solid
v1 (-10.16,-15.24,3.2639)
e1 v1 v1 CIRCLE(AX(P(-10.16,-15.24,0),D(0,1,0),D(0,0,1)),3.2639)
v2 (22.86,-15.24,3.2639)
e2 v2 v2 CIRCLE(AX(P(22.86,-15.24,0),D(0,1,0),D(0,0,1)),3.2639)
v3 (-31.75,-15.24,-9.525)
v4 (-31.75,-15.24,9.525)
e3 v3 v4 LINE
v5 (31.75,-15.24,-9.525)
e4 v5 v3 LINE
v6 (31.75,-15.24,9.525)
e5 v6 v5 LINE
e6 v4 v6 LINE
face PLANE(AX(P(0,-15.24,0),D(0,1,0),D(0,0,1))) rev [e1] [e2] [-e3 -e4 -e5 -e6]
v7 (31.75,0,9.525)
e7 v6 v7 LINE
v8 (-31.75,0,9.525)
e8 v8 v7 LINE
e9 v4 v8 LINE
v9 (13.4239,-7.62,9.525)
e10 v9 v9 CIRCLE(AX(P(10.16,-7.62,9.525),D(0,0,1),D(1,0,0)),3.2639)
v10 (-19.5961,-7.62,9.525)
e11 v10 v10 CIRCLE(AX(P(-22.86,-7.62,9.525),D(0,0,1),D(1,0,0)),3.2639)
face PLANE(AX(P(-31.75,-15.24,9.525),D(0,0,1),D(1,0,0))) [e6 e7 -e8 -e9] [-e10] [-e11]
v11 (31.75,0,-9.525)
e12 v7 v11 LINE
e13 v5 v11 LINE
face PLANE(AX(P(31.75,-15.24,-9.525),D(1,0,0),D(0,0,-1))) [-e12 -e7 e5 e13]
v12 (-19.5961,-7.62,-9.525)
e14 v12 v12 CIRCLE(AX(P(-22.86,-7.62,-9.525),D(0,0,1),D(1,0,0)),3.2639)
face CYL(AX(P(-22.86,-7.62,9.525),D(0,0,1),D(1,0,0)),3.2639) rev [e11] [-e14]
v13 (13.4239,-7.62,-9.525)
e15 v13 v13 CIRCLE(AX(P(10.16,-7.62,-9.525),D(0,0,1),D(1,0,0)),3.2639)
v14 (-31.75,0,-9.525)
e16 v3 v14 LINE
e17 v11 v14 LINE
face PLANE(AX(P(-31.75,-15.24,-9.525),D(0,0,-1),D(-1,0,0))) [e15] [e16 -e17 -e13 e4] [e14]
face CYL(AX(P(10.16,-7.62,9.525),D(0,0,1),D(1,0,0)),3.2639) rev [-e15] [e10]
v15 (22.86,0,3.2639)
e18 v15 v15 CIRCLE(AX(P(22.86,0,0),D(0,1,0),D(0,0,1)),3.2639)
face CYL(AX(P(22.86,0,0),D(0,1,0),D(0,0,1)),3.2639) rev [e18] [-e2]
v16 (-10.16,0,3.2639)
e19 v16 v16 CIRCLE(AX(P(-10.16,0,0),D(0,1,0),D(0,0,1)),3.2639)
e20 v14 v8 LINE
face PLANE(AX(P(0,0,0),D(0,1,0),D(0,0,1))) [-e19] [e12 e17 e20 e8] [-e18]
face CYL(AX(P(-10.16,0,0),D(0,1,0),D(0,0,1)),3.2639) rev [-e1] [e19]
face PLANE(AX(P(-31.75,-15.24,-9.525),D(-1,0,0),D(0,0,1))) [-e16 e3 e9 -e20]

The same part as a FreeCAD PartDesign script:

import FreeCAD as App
import Part
import Sketcher
Q = App.Units.Quantity


def add_polygon(sketch, points):
    """Adds a closed chain of lines whose ends are joined by coincident constraints."""
    first, n = sketch.GeometryCount, len(points)
    for a, b in zip(points, points[1:] + points[:1]):
        sketch.addGeometry(Part.LineSegment(App.Vector(*a, 0), App.Vector(*b, 0)), False)
    for i in range(n):
        sketch.addConstraint(Sketcher.Constraint("Coincident", first + i, 2, first + (i + 1) % n, 1))

doc = App.newDocument("Part")
params = doc.addObject("Spreadsheet::Sheet", "Params")
for row, (alias, value) in enumerate([
    ("sketch1_width", "2.5 in"),
    ("sketch1_height", "0.75 in"),
    ("pad1_length", "0.6 in"),
    ("sketch2_diameter", "0.257 in"),
    ("hole_diameter", "0.257 in"),
    ("sketch3_diameter", "0.257 in"),
    ("hole2_diameter", "0.257 in"),
], start=1):
    params.set(f"A{row}", alias)
    params.set(f"B{row}", "=" + value)
    params.setAlias(f"B{row}", alias)

body = doc.addObject("PartDesign::Body", "Body")

# Sketch on XZ plane
sketch1 = body.newObject("Sketcher::SketchObject", "Sketch")
sketch1.AttachmentSupport = (doc.getObject("XZ_Plane"), [""])
sketch1.MapMode = "FlatFace"
add_polygon(sketch1, [(-32, -10), (-32, 10), (32, 10), (32, -10)])  # lines 0-3
sketch1.addConstraint([
    Sketcher.Constraint("Vertical", 0),
    Sketcher.Constraint("Horizontal", 1),
    Sketcher.Constraint("Vertical", 2),
    Sketcher.Constraint("Horizontal", 3),
    Sketcher.Constraint("Symmetric", 0, 2, 2, 2, -1, 1),
    Sketcher.Constraint("DistanceX", 1, 1, 1, 2, Q("2.5 in")),
    Sketcher.Constraint("DistanceY", 0, 1, 0, 2, Q("0.75 in")),
])
sketch1.setExpression("Constraints[9]", "Params.sketch1_width")
sketch1.setExpression("Constraints[10]", "Params.sketch1_height")
pad1 = body.newObject("PartDesign::Pad", "Pad")
pad1.Profile = sketch1
pad1.setExpression("Length", "Params.pad1_length")

# Sketch on XY plane
sketch2 = body.newObject("Sketcher::SketchObject", "Sketch001")
sketch2.AttachmentSupport = (doc.getObject("XY_Plane"), [""])
sketch2.MapMode = "FlatFace"
sketch2.AttachmentOffset = App.Placement(App.Vector(0, 0, 0.375 * 25.4), App.Rotation())
sketch2.addGeometry([
    Part.Circle(App.Vector(-22.9, -7.6, 0), App.Vector(0, 0, 1), 3.3),
    Part.Circle(App.Vector(10.2, -7.6, 0), App.Vector(0, 0, 1), 3.3),
], False)
sketch2.addConstraint([
    Sketcher.Constraint("Equal", 0, 1),
    Sketcher.Constraint("Horizontal", 0, 3, 1, 3),
    Sketcher.Constraint("Diameter", 0, Q("0.257 in")),
    Sketcher.Constraint("DistanceX", 0, 3, -1, 1, Q("0.9 in")),
    Sketcher.Constraint("DistanceY", 0, 3, -1, 1, Q("0.3 in")),
    Sketcher.Constraint("DistanceX", -1, 1, 1, 3, Q("0.4 in")),
])
sketch2.setExpression("Constraints[2]", "Params.sketch2_diameter")
doc.recompute()
hole = body.newObject("PartDesign::Hole", "Hole")
hole.Profile = sketch2
hole.ThreadType = "None"
hole.setExpression("Diameter", "Params.hole_diameter")
hole.DepthType = "ThroughAll"

# Sketch on XZ plane
sketch3 = body.newObject("Sketcher::SketchObject", "Sketch002")
sketch3.AttachmentSupport = (doc.getObject("XZ_Plane"), [""])
sketch3.MapMode = "FlatFace"
sketch3.addGeometry([
    Part.Circle(App.Vector(-10.2, 0, 0), App.Vector(0, 0, 1), 3.3),
    Part.Circle(App.Vector(22.9, 0, 0), App.Vector(0, 0, 1), 3.3),
], False)
sketch3.addConstraint([
    Sketcher.Constraint("Equal", 0, 1),
    Sketcher.Constraint("PointOnObject", 0, 3, -1),
    Sketcher.Constraint("PointOnObject", 1, 3, -1),
    Sketcher.Constraint("Diameter", 0, Q("0.257 in")),
    Sketcher.Constraint("DistanceX", 0, 3, -1, 1, Q("0.4 in")),
    Sketcher.Constraint("DistanceX", -1, 1, 1, 3, Q("0.9 in")),
])
sketch3.setExpression("Constraints[3]", "Params.sketch3_diameter")
doc.recompute()
hole2 = body.newObject("PartDesign::Hole", "Hole001")
hole2.Profile = sketch3
hole2.ThreadType = "None"
hole2.setExpression("Diameter", "Params.hole2_diameter")
hole2.DepthType = "ThroughAll"
hole2.Reversed = True

doc.recompute()
